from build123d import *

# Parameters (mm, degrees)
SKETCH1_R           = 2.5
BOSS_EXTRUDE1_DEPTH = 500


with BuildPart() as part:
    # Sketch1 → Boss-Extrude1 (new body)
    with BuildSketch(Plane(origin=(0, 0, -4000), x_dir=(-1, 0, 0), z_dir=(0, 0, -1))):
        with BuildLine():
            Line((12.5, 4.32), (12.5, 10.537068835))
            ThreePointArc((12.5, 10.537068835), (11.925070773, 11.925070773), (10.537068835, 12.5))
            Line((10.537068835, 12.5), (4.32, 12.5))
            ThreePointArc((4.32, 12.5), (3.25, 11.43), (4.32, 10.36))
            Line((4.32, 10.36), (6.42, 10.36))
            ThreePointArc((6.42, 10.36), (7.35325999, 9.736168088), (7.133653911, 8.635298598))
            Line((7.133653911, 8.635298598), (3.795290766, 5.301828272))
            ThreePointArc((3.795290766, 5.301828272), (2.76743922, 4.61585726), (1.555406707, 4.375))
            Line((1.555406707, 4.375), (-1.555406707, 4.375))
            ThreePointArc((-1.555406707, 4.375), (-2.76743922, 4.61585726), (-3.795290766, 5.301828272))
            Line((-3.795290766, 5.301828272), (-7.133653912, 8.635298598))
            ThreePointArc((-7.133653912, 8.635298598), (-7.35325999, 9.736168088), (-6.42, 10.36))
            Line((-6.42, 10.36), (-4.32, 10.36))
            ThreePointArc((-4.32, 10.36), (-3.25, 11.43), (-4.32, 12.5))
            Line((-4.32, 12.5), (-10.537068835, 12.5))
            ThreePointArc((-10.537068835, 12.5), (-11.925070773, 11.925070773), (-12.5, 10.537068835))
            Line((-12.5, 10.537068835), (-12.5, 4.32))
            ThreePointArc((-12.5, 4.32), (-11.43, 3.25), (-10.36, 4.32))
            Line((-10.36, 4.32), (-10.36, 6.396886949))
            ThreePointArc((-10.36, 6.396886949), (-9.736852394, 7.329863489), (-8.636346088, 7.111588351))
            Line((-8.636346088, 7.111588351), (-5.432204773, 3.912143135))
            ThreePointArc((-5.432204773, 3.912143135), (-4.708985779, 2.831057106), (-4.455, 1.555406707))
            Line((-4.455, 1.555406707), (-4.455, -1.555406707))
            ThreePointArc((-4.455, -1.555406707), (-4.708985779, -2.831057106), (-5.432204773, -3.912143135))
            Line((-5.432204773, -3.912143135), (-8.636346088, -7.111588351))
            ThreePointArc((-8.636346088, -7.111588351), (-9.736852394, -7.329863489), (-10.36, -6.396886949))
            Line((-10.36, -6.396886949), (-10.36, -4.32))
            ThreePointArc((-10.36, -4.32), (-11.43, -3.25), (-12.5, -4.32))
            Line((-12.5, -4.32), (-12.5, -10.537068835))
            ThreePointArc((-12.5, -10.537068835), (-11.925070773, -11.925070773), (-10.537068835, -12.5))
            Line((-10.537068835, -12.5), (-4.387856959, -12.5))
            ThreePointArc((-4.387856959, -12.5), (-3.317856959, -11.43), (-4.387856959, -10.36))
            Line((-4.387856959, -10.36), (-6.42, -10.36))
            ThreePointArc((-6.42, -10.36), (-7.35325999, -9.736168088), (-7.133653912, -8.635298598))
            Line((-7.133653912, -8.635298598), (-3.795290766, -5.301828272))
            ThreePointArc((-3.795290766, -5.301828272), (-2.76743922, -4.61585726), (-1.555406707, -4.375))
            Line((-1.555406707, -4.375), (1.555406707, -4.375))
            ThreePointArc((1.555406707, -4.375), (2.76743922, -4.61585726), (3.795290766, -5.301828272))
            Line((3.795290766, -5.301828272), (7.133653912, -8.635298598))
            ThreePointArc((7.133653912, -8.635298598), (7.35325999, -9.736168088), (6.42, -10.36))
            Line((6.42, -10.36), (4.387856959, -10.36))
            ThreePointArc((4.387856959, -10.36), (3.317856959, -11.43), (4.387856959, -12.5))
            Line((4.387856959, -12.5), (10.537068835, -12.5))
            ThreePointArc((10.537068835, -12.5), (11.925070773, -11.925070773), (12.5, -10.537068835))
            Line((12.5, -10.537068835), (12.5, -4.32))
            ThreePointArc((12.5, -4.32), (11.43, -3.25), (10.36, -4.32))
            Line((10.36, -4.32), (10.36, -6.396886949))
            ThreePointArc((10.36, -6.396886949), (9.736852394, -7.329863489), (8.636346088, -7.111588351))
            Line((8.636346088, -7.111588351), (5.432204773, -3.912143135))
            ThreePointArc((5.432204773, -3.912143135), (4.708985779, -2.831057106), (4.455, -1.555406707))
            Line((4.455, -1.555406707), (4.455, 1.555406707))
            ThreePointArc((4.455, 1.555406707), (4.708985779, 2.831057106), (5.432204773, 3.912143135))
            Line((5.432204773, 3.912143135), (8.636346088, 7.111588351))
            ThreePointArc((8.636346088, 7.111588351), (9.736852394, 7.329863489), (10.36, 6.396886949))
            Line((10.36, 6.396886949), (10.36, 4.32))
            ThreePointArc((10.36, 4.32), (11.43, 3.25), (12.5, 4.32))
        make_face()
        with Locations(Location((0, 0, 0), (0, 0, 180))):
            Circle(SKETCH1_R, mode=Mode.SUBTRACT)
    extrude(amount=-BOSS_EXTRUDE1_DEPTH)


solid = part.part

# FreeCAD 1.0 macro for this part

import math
import FreeCAD as App
import Part
import Sketcher

doc = App.newDocument("Part")
body = doc.addObject("PartDesign::Body", "Body")

# Sketch on XY plane
sketch1 = doc.addObject("Sketcher::SketchObject", "Sketch")
body.addObject(sketch1)
sketch1.AttachmentSupport = (doc.XY_Plane, [""])
sketch1.MapMode = "FlatFace"
sketch1.AttachmentOffset = App.Placement(App.Vector(0, 0, -4000), App.Rotation())
sketch1.addGeometry([
    Part.LineSegment(App.Vector(-12.5, 4.3, 0), App.Vector(-12.5, 10.5, 0)),  # 0
    Part.ArcOfCircle(Part.Circle(App.Vector(-10.5, 10.5, 0), App.Vector(0, 0, 1), 2), math.radians(90), math.radians(180)),  # 1
    Part.LineSegment(App.Vector(-10.5, 12.5, 0), App.Vector(-4.3, 12.5, 0)),  # 2
    Part.ArcOfCircle(Part.Circle(App.Vector(-4.3, 11.4, 0), App.Vector(0, 0, 1), 1.1), math.radians(-90), math.radians(90)),  # 3
    Part.LineSegment(App.Vector(-4.3, 10.4, 0), App.Vector(-6.4, 10.4, 0)),  # 4
    Part.ArcOfCircle(Part.Circle(App.Vector(-6.4, 9.4, 0), App.Vector(0, 0, 1), 1), math.radians(90), math.radians(225)),  # 5
    Part.LineSegment(App.Vector(-7.1, 8.6, 0), App.Vector(-3.8, 5.3, 0)),  # 6
    Part.ArcOfCircle(Part.Circle(App.Vector(-1.6, 7.5, 0), App.Vector(0, 0, 1), 3.2), math.radians(-135), math.radians(-90)),  # 7
    Part.LineSegment(App.Vector(-1.6, 4.4, 0), App.Vector(1.6, 4.4, 0)),  # 8
    Part.ArcOfCircle(Part.Circle(App.Vector(1.6, 7.5, 0), App.Vector(0, 0, 1), 3.2), math.radians(-90), math.radians(-45)),  # 9
    Part.LineSegment(App.Vector(3.8, 5.3, 0), App.Vector(7.1, 8.6, 0)),  # 10
    Part.ArcOfCircle(Part.Circle(App.Vector(6.4, 9.3, 0), App.Vector(0, 0, 1), 1), math.radians(-45), math.radians(90)),  # 11
    Part.LineSegment(App.Vector(6.4, 10.4, 0), App.Vector(4.3, 10.4, 0)),  # 12
    Part.ArcOfCircle(Part.Circle(App.Vector(4.3, 11.4, 0), App.Vector(0, 0, 1), 1.1), math.radians(90), math.radians(270)),  # 13
    Part.LineSegment(App.Vector(4.3, 12.5, 0), App.Vector(10.5, 12.5, 0)),  # 14
    Part.ArcOfCircle(Part.Circle(App.Vector(10.5, 10.5, 0), App.Vector(0, 0, 1), 2), math.radians(0), math.radians(90)),  # 15
    Part.LineSegment(App.Vector(12.5, 10.5, 0), App.Vector(12.5, 4.3, 0)),  # 16
    Part.ArcOfCircle(Part.Circle(App.Vector(11.4, 4.3, 0), App.Vector(0, 0, 1), 1.1), math.radians(180), math.radians(360)),  # 17
    Part.LineSegment(App.Vector(10.4, 4.3, 0), App.Vector(10.4, 6.4, 0)),  # 18
    Part.ArcOfCircle(Part.Circle(App.Vector(9.3, 6.4, 0), App.Vector(0, 0, 1), 1), math.radians(0), math.radians(135)),  # 19
    Part.LineSegment(App.Vector(8.6, 7.1, 0), App.Vector(5.4, 3.9, 0)),  # 20
    Part.ArcOfCircle(Part.Circle(App.Vector(7.8, 1.6, 0), App.Vector(0, 0, 1), 3.3), math.radians(135), math.radians(180)),  # 21
    Part.LineSegment(App.Vector(4.5, 1.6, 0), App.Vector(4.5, -1.6, 0)),  # 22
    Part.ArcOfCircle(Part.Circle(App.Vector(7.8, -1.6, 0), App.Vector(0, 0, 1), 3.3), math.radians(180), math.radians(225)),  # 23
    Part.LineSegment(App.Vector(5.4, -3.9, 0), App.Vector(8.6, -7.1, 0)),  # 24
    Part.ArcOfCircle(Part.Circle(App.Vector(9.3, -6.4, 0), App.Vector(0, 0, 1), 1), math.radians(-135), math.radians(0)),  # 25
    Part.LineSegment(App.Vector(10.4, -6.4, 0), App.Vector(10.4, -4.3, 0)),  # 26
    Part.ArcOfCircle(Part.Circle(App.Vector(11.4, -4.3, 0), App.Vector(0, 0, 1), 1.1), math.radians(0), math.radians(180)),  # 27
    Part.LineSegment(App.Vector(12.5, -4.3, 0), App.Vector(12.5, -10.5, 0)),  # 28
    Part.ArcOfCircle(Part.Circle(App.Vector(10.5, -10.5, 0), App.Vector(0, 0, 1), 2), math.radians(-90), math.radians(0)),  # 29
    Part.LineSegment(App.Vector(10.5, -12.5, 0), App.Vector(4.4, -12.5, 0)),  # 30
    Part.ArcOfCircle(Part.Circle(App.Vector(4.4, -11.4, 0), App.Vector(0, 0, 1), 1.1), math.radians(90), math.radians(270)),  # 31
    Part.LineSegment(App.Vector(4.4, -10.4, 0), App.Vector(6.4, -10.4, 0)),  # 32
    Part.ArcOfCircle(Part.Circle(App.Vector(6.4, -9.3, 0), App.Vector(0, 0, 1), 1), math.radians(-90), math.radians(45)),  # 33
    Part.LineSegment(App.Vector(7.1, -8.6, 0), App.Vector(3.8, -5.3, 0)),  # 34
    Part.ArcOfCircle(Part.Circle(App.Vector(1.6, -7.5, 0), App.Vector(0, 0, 1), 3.2), math.radians(45), math.radians(90)),  # 35
    Part.LineSegment(App.Vector(1.6, -4.4, 0), App.Vector(-1.6, -4.4, 0)),  # 36
    Part.ArcOfCircle(Part.Circle(App.Vector(-1.6, -7.5, 0), App.Vector(0, 0, 1), 3.2), math.radians(90), math.radians(135)),  # 37
    Part.LineSegment(App.Vector(-3.8, -5.3, 0), App.Vector(-7.1, -8.6, 0)),  # 38
    Part.ArcOfCircle(Part.Circle(App.Vector(-6.4, -9.3, 0), App.Vector(0, 0, 1), 1), math.radians(135), math.radians(270)),  # 39
    Part.LineSegment(App.Vector(-6.4, -10.4, 0), App.Vector(-4.4, -10.4, 0)),  # 40
    Part.ArcOfCircle(Part.Circle(App.Vector(-4.4, -11.4, 0), App.Vector(0, 0, 1), 1.1), math.radians(-90), math.radians(90)),  # 41
    Part.LineSegment(App.Vector(-4.4, -12.5, 0), App.Vector(-10.5, -12.5, 0)),  # 42
    Part.ArcOfCircle(Part.Circle(App.Vector(-10.5, -10.5, 0), App.Vector(0, 0, 1), 2), math.radians(180), math.radians(270)),  # 43
    Part.LineSegment(App.Vector(-12.5, -10.5, 0), App.Vector(-12.5, -4.3, 0)),  # 44
    Part.ArcOfCircle(Part.Circle(App.Vector(-11.4, -4.3, 0), App.Vector(0, 0, 1), 1.1), math.radians(0), math.radians(180)),  # 45
    Part.LineSegment(App.Vector(-10.4, -4.3, 0), App.Vector(-10.4, -6.4, 0)),  # 46
    Part.ArcOfCircle(Part.Circle(App.Vector(-9.3, -6.4, 0), App.Vector(0, 0, 1), 1), math.radians(-180), math.radians(-45)),  # 47
    Part.LineSegment(App.Vector(-8.6, -7.1, 0), App.Vector(-5.4, -3.9, 0)),  # 48
    Part.ArcOfCircle(Part.Circle(App.Vector(-7.8, -1.6, 0), App.Vector(0, 0, 1), 3.3), math.radians(-45), math.radians(0)),  # 49
    Part.LineSegment(App.Vector(-4.5, -1.6, 0), App.Vector(-4.5, 1.6, 0)),  # 50
    Part.ArcOfCircle(Part.Circle(App.Vector(-7.8, 1.6, 0), App.Vector(0, 0, 1), 3.3), math.radians(0), math.radians(45)),  # 51
    Part.LineSegment(App.Vector(-5.4, 3.9, 0), App.Vector(-8.6, 7.1, 0)),  # 52
    Part.ArcOfCircle(Part.Circle(App.Vector(-9.3, 6.4, 0), App.Vector(0, 0, 1), 1), math.radians(45), math.radians(180)),  # 53
    Part.LineSegment(App.Vector(-10.4, 6.4, 0), App.Vector(-10.4, 4.3, 0)),  # 54
    Part.ArcOfCircle(Part.Circle(App.Vector(-11.4, 4.3, 0), App.Vector(0, 0, 1), 1.1), math.radians(180), math.radians(360)),  # 55
    Part.Circle(App.Vector(0, 0, 0), App.Vector(0, 0, 1), 2.5),  # 56
], False)
sketch1.addConstraint([
    Sketcher.Constraint("Tangent", 0, 2, 1, 2),
    Sketcher.Constraint("Tangent", 1, 1, 2, 1),
    Sketcher.Constraint("Tangent", 2, 2, 3, 2),
    Sketcher.Constraint("Tangent", 3, 1, 4, 1),
    Sketcher.Constraint("Tangent", 4, 2, 5, 1),
    Sketcher.Constraint("Tangent", 5, 2, 6, 1),
    Sketcher.Constraint("Tangent", 6, 2, 7, 1),
    Sketcher.Constraint("Tangent", 7, 2, 8, 1),
    Sketcher.Constraint("Tangent", 8, 2, 9, 1),
    Sketcher.Constraint("Tangent", 9, 2, 10, 1),
    Sketcher.Constraint("Tangent", 10, 2, 11, 1),
    Sketcher.Constraint("Tangent", 11, 2, 12, 1),
    Sketcher.Constraint("Tangent", 12, 2, 13, 2),
    Sketcher.Constraint("Tangent", 13, 1, 14, 1),
    Sketcher.Constraint("Tangent", 14, 2, 15, 2),
    Sketcher.Constraint("Tangent", 15, 1, 16, 1),
    Sketcher.Constraint("Tangent", 16, 2, 17, 2),
    Sketcher.Constraint("Tangent", 17, 1, 18, 1),
    Sketcher.Constraint("Tangent", 18, 2, 19, 1),
    Sketcher.Constraint("Tangent", 19, 2, 20, 1),
    Sketcher.Constraint("Tangent", 20, 2, 21, 1),
    Sketcher.Constraint("Tangent", 21, 2, 22, 1),
    Sketcher.Constraint("Tangent", 22, 2, 23, 1),
    Sketcher.Constraint("Tangent", 23, 2, 24, 1),
    Sketcher.Constraint("Tangent", 24, 2, 25, 1),
    Sketcher.Constraint("Tangent", 25, 2, 26, 1),
    Sketcher.Constraint("Tangent", 26, 2, 27, 2),
    Sketcher.Constraint("Tangent", 27, 1, 28, 1),
    Sketcher.Constraint("Tangent", 28, 2, 29, 2),
    Sketcher.Constraint("Tangent", 29, 1, 30, 1),
    Sketcher.Constraint("Tangent", 30, 2, 31, 2),
    Sketcher.Constraint("Tangent", 31, 1, 32, 1),
    Sketcher.Constraint("Tangent", 32, 2, 33, 1),
    Sketcher.Constraint("Tangent", 33, 2, 34, 1),
    Sketcher.Constraint("Tangent", 34, 2, 35, 1),
    Sketcher.Constraint("Tangent", 35, 2, 36, 1),
    Sketcher.Constraint("Tangent", 36, 2, 37, 1),
    Sketcher.Constraint("Tangent", 37, 2, 38, 1),
    Sketcher.Constraint("Tangent", 38, 2, 39, 1),
    Sketcher.Constraint("Tangent", 39, 2, 40, 1),
    Sketcher.Constraint("Tangent", 40, 2, 41, 2),
    Sketcher.Constraint("Tangent", 41, 1, 42, 1),
    Sketcher.Constraint("Tangent", 42, 2, 43, 2),
    Sketcher.Constraint("Tangent", 43, 1, 44, 1),
    Sketcher.Constraint("Tangent", 44, 2, 45, 2),
    Sketcher.Constraint("Tangent", 45, 1, 46, 1),
    Sketcher.Constraint("Tangent", 46, 2, 47, 1),
    Sketcher.Constraint("Tangent", 47, 2, 48, 1),
    Sketcher.Constraint("Tangent", 48, 2, 49, 1),
    Sketcher.Constraint("Tangent", 49, 2, 50, 1),
    Sketcher.Constraint("Tangent", 50, 2, 51, 1),
    Sketcher.Constraint("Tangent", 51, 2, 52, 1),
    Sketcher.Constraint("Tangent", 52, 2, 53, 1),
    Sketcher.Constraint("Tangent", 53, 2, 54, 1),
    Sketcher.Constraint("Tangent", 54, 2, 55, 2),
    Sketcher.Constraint("Tangent", 55, 1, 0, 1),
    Sketcher.Constraint("Vertical", 0),
    Sketcher.Constraint("Horizontal", 2),
    Sketcher.Constraint("Horizontal", 4),
    Sketcher.Constraint("Horizontal", 8),
    Sketcher.Constraint("Horizontal", 12),
    Sketcher.Constraint("Horizontal", 14),
    Sketcher.Constraint("Vertical", 16),
    Sketcher.Constraint("Vertical", 18),
    Sketcher.Constraint("Vertical", 22),
    Sketcher.Constraint("Vertical", 26),
    Sketcher.Constraint("Vertical", 28),
    Sketcher.Constraint("Horizontal", 30),
    Sketcher.Constraint("Horizontal", 32),
    Sketcher.Constraint("Horizontal", 36),
    Sketcher.Constraint("Horizontal", 40),
    Sketcher.Constraint("Horizontal", 42),
    Sketcher.Constraint("Vertical", 44),
    Sketcher.Constraint("Vertical", 46),
    Sketcher.Constraint("Vertical", 50),
    Sketcher.Constraint("Vertical", 54),
    Sketcher.Constraint("Coincident", 56, 3, -1, 1),
    Sketcher.Constraint("Equal", 7, 9),
    Sketcher.Constraint("Equal", 5, 11),
    Sketcher.Constraint("Equal", 3, 13),
    Sketcher.Constraint("Equal", 1, 15),
    Sketcher.Constraint("Equal", 13, 17),
    Sketcher.Constraint("Equal", 11, 19),
    Sketcher.Constraint("Equal", 21, 23),
    Sketcher.Constraint("Equal", 19, 25),
    Sketcher.Constraint("Equal", 17, 27),
    Sketcher.Constraint("Equal", 15, 29),
    Sketcher.Constraint("Equal", 27, 31),
    Sketcher.Constraint("Equal", 25, 33),
    Sketcher.Constraint("Equal", 9, 35),
    Sketcher.Constraint("Equal", 35, 37),
    Sketcher.Constraint("Equal", 33, 39),
    Sketcher.Constraint("Equal", 31, 41),
    Sketcher.Constraint("Equal", 29, 43),
    Sketcher.Constraint("Equal", 41, 45),
    Sketcher.Constraint("Equal", 39, 47),
    Sketcher.Constraint("Equal", 23, 49),
    Sketcher.Constraint("Equal", 49, 51),
    Sketcher.Constraint("Equal", 47, 53),
    Sketcher.Constraint("Equal", 45, 55),
    Sketcher.Constraint("Symmetric", 1, 3, 29, 3, -1, 1),
    Sketcher.Constraint("Symmetric", 7, 3, 35, 3, -1, 1),
    Sketcher.Constraint("Symmetric", 11, 3, 39, 3, -1, 1),
    Sketcher.Constraint("Symmetric", 17, 3, 45, 3, -1, 1),
    Sketcher.Constraint("Symmetric", 21, 3, 49, 3, -1, 1),
    Sketcher.Constraint("Symmetric", 23, 2, 51, 2, -1, 1),
    Sketcher.Constraint("Symmetric", 5, 3, 11, 3, -2),
    Sketcher.Constraint("Symmetric", 27, 3, 45, 3, -2),
    Sketcher.Constraint("Symmetric", 34, 2, 37, 2, -2),
    Sketcher.Constraint("Symmetric", 24, 2, 47, 2, -2),
    Sketcher.Constraint("Parallel", 10, 20),
    Sketcher.Constraint("Parallel", 6, 24),
    Sketcher.Constraint("Parallel", 20, 38),
    Sketcher.Constraint("Horizontal", 17, 3, 55, 3),
    Sketcher.Constraint("Equal", 4, 12),
    Sketcher.Constraint("Equal", 32, 40),
    Sketcher.Constraint("Equal", 14, 0),
    Sketcher.Constraint("Equal", 36, 22),
    Sketcher.Constraint("Diameter", 56, 5.0),
    Sketcher.Constraint("Radius", 3, 1.07),
    Sketcher.Constraint("Radius", 5, 1.01),
    Sketcher.Constraint("Radius", 7, 3.17),
    Sketcher.Constraint("DistanceX", 4, 2, 4, 1, 2.1),
    Sketcher.Constraint("DistanceX", 0, 2, -1, 1, 12.5),
    Sketcher.Constraint("DistanceY", -1, 1, 1, 1, 12.5),
    Sketcher.Constraint("DistanceX", 3, 3, -1, 1, 4.32),
    Sketcher.Constraint("Radius", 1, 1.962931),
    Sketcher.Constraint("DistanceY", -1, 1, 7, 3, 7.545),
    Sketcher.Constraint("DistanceX", -1, 1, 21, 2, 4.455),
    Sketcher.Constraint("Radius", 21, 3.330487),
    Sketcher.Constraint("Distance", 6, 4.7177),
    Sketcher.Constraint("DistanceX", 30, 2, 30, 1, 6.149212),
])
pad1 = doc.addObject("PartDesign::Pad", "Pad")
body.addObject(pad1)
pad1.Profile = sketch1
pad1.Length = 500

doc.recompute()
